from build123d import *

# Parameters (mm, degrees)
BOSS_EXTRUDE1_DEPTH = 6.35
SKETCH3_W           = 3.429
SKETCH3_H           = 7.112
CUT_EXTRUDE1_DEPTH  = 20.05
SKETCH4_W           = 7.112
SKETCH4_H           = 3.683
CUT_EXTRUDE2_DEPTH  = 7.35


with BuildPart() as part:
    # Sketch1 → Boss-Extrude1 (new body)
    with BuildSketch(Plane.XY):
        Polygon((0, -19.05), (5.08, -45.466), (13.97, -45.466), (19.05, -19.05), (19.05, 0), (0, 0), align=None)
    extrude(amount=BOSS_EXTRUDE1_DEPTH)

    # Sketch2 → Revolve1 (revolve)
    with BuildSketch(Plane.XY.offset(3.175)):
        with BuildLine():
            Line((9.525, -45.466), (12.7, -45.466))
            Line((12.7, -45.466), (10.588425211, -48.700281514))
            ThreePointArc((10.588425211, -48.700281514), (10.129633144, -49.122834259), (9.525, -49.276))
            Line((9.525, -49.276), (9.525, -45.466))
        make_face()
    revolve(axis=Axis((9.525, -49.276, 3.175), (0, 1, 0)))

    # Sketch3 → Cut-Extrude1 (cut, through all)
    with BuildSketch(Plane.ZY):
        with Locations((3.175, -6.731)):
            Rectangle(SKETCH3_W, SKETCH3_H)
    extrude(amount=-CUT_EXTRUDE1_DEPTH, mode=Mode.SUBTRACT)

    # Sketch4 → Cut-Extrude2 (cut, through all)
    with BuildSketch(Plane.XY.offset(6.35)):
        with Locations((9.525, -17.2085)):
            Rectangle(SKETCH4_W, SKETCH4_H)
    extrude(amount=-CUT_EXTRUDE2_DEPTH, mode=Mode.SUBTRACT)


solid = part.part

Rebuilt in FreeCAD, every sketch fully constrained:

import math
import FreeCAD as App
import Part
import Sketcher

V = App.Vector
Q = App.Units.Quantity

doc = App.newDocument("Part")
body = doc.addObject("PartDesign::Body", "Body")

sketch1 = body.newObject("Sketcher::SketchObject", "Sketch")
sketch1.AttachmentSupport = (doc.getObject("XY_Plane"), [""])
sketch1.MapMode = "FlatFace"
sketch1.addGeometry([
    Part.LineSegment(V(0, -19.05, 0), V(5.08, -45.466, 0)),
    Part.LineSegment(V(5.08, -45.466, 0), V(13.97, -45.466, 0)),
    Part.LineSegment(V(13.97, -45.466, 0), V(19.05, -19.05, 0)),
    Part.LineSegment(V(19.05, -19.05, 0), V(19.05, 0, 0)),
    Part.LineSegment(V(19.05, 0, 0), V(0, 0, 0)),
    Part.LineSegment(V(0, 0, 0), V(0, -19.05, 0)),
], False)
sketch1.addConstraint([
    Sketcher.Constraint("Coincident", 0, 2, 1, 1),
    Sketcher.Constraint("Coincident", 1, 2, 2, 1),
    Sketcher.Constraint("Coincident", 2, 2, 3, 1),
    Sketcher.Constraint("Coincident", 3, 2, 4, 1),
    Sketcher.Constraint("Coincident", 4, 2, 5, 1),
    Sketcher.Constraint("Coincident", 5, 2, 0, 1),
    Sketcher.Constraint("Horizontal", 1),
    Sketcher.Constraint("Vertical", 3),
    Sketcher.Constraint("Horizontal", 4),
    Sketcher.Constraint("Vertical", 5),
    Sketcher.Constraint("Coincident", 4, 2, -1, 1),
    Sketcher.Constraint("Horizontal", 2, 2, 5, 2),
    Sketcher.Constraint("Equal", 4, 3),
    Sketcher.Constraint("Equal", 0, 2),
    Sketcher.Constraint("DistanceX", 1, 1, 1, 2, Q("0.35 in")),
    Sketcher.Constraint("DistanceX", 4, 2, 4, 1, Q("0.75 in")),
    Sketcher.Constraint("DistanceY", 0, 2, -1, 1, Q("1.79 in")),
])
pad1 = body.newObject("PartDesign::Pad", "Pad")
pad1.Profile = sketch1
pad1.Length = Q("0.25 in")

sketch2 = body.newObject("Sketcher::SketchObject", "Sketch001")
sketch2.AttachmentSupport = (doc.getObject("XY_Plane"), [""])
sketch2.MapMode = "FlatFace"
sketch2.AttachmentOffset = App.Placement(V(0, 0, 0.125 * 25.4), App.Rotation())
sketch2.addGeometry([
    Part.LineSegment(V(12.7, -45.466, 0), V(9.525, -45.466, 0)),
    Part.LineSegment(V(9.525, -45.466, 0), V(9.525, -49.276, 0)),
    Part.ArcOfCircle(Part.Circle(V(9.525, -48.006, 0), V(0, 0, 1), 1.27), math.radians(-90), math.radians(-33.139431)),
    Part.LineSegment(V(10.588425, -48.700282, 0), V(12.7, -45.466, 0)),
], False)
sketch2.addGeometry(Part.LineSegment(V(9.525, -49.276, 0), V(9.525, -45.466, 0)), True)
sketch2.addConstraint([
    Sketcher.Constraint("Coincident", 0, 2, 1, 1),
    Sketcher.Constraint("Coincident", 1, 2, 2, 1),
    Sketcher.Constraint("Tangent", 2, 2, 3, 1),
    Sketcher.Constraint("Coincident", 3, 2, 0, 1),
    Sketcher.Constraint("Horizontal", 0),
    Sketcher.Constraint("Vertical", 1),
    Sketcher.Constraint("Vertical", 4),
    Sketcher.Constraint("Coincident", 4, 1, 1, 2),
    Sketcher.Constraint("Horizontal", 3, 2, 4, 2),
    Sketcher.Constraint("Vertical", 2, 3, 0, 2),
    Sketcher.Constraint("Radius", 2, Q("0.05 in")),
    Sketcher.Constraint("DistanceY", 1, 2, 1, 1, Q("0.15 in")),
    Sketcher.Constraint("DistanceX", -1, 1, 3, 2, Q("0.5 in")),
    Sketcher.Constraint("DistanceX", 0, 2, 0, 1, Q("0.125 in")),
    Sketcher.Constraint("DistanceY", 2, 3, -1, 1, Q("1.89 in")),
])
revolution = body.newObject("PartDesign::Revolution", "Revolution")
revolution.Profile = sketch2
revolution.ReferenceAxis = (sketch2, ["Axis0"])
revolution.Angle = 360

sketch3 = body.newObject("Sketcher::SketchObject", "Sketch002")
sketch3.AttachmentSupport = (doc.getObject("YZ_Plane"), [""])
sketch3.MapMode = "FlatFace"
sketch3.addGeometry([
    Part.LineSegment(V(-3.175, 1.4605, 0), V(-10.287, 1.4605, 0)),
    Part.LineSegment(V(-10.287, 1.4605, 0), V(-10.287, 4.8895, 0)),
    Part.LineSegment(V(-10.287, 4.8895, 0), V(-3.175, 4.8895, 0)),
    Part.LineSegment(V(-3.175, 4.8895, 0), V(-3.175, 1.4605, 0)),
], False)
sketch3.addConstraint([
    Sketcher.Constraint("Coincident", 0, 2, 1, 1),
    Sketcher.Constraint("Coincident", 1, 2, 2, 1),
    Sketcher.Constraint("Coincident", 2, 2, 3, 1),
    Sketcher.Constraint("Coincident", 3, 2, 0, 1),
    Sketcher.Constraint("Horizontal", 0),
    Sketcher.Constraint("Vertical", 1),
    Sketcher.Constraint("Horizontal", 2),
    Sketcher.Constraint("Vertical", 3),
    Sketcher.Constraint("DistanceX", 0, 2, 0, 1, Q("0.28 in")),
    Sketcher.Constraint("DistanceY", 1, 1, 1, 2, Q("0.135 in")),
    Sketcher.Constraint("DistanceX", 0, 2, -1, 1, Q("0.405 in")),
    Sketcher.Constraint("DistanceY", -1, 1, 0, 2, Q("0.0575 in")),
])
pocket1 = body.newObject("PartDesign::Pocket", "Pocket")
pocket1.Profile = sketch3
pocket1.Type = "ThroughAll"
pocket1.Reversed = True

sketch4 = body.newObject("Sketcher::SketchObject", "Sketch003")
sketch4.AttachmentSupport = (doc.getObject("XY_Plane"), [""])
sketch4.MapMode = "FlatFace"
sketch4.AttachmentOffset = App.Placement(V(0, 0, 0.25 * 25.4), App.Rotation())
sketch4.addGeometry([
    Part.LineSegment(V(5.969, -15.367, 0), V(5.969, -19.05, 0)),
    Part.LineSegment(V(5.969, -19.05, 0), V(13.081, -19.05, 0)),
    Part.LineSegment(V(13.081, -19.05, 0), V(13.081, -15.367, 0)),
    Part.LineSegment(V(13.081, -15.367, 0), V(5.969, -15.367, 0)),
], False)
sketch4.addConstraint([
    Sketcher.Constraint("Coincident", 0, 2, 1, 1),
    Sketcher.Constraint("Coincident", 1, 2, 2, 1),
    Sketcher.Constraint("Coincident", 2, 2, 3, 1),
    Sketcher.Constraint("Coincident", 3, 2, 0, 1),
    Sketcher.Constraint("Vertical", 0),
    Sketcher.Constraint("Horizontal", 1),
    Sketcher.Constraint("Vertical", 2),
    Sketcher.Constraint("Horizontal", 3),
    Sketcher.Constraint("DistanceX", 1, 1, 1, 2, Q("0.28 in")),
    Sketcher.Constraint("DistanceY", 0, 2, 0, 1, Q("0.145 in")),
    Sketcher.Constraint("DistanceY", 0, 2, -1, 1, Q("0.75 in")),
    Sketcher.Constraint("DistanceX", -1, 1, 0, 2, Q("0.235 in")),
])
pocket2 = body.newObject("PartDesign::Pocket", "Pocket001")
pocket2.Profile = sketch4
pocket2.Type = "ThroughAll"

doc.recompute()
